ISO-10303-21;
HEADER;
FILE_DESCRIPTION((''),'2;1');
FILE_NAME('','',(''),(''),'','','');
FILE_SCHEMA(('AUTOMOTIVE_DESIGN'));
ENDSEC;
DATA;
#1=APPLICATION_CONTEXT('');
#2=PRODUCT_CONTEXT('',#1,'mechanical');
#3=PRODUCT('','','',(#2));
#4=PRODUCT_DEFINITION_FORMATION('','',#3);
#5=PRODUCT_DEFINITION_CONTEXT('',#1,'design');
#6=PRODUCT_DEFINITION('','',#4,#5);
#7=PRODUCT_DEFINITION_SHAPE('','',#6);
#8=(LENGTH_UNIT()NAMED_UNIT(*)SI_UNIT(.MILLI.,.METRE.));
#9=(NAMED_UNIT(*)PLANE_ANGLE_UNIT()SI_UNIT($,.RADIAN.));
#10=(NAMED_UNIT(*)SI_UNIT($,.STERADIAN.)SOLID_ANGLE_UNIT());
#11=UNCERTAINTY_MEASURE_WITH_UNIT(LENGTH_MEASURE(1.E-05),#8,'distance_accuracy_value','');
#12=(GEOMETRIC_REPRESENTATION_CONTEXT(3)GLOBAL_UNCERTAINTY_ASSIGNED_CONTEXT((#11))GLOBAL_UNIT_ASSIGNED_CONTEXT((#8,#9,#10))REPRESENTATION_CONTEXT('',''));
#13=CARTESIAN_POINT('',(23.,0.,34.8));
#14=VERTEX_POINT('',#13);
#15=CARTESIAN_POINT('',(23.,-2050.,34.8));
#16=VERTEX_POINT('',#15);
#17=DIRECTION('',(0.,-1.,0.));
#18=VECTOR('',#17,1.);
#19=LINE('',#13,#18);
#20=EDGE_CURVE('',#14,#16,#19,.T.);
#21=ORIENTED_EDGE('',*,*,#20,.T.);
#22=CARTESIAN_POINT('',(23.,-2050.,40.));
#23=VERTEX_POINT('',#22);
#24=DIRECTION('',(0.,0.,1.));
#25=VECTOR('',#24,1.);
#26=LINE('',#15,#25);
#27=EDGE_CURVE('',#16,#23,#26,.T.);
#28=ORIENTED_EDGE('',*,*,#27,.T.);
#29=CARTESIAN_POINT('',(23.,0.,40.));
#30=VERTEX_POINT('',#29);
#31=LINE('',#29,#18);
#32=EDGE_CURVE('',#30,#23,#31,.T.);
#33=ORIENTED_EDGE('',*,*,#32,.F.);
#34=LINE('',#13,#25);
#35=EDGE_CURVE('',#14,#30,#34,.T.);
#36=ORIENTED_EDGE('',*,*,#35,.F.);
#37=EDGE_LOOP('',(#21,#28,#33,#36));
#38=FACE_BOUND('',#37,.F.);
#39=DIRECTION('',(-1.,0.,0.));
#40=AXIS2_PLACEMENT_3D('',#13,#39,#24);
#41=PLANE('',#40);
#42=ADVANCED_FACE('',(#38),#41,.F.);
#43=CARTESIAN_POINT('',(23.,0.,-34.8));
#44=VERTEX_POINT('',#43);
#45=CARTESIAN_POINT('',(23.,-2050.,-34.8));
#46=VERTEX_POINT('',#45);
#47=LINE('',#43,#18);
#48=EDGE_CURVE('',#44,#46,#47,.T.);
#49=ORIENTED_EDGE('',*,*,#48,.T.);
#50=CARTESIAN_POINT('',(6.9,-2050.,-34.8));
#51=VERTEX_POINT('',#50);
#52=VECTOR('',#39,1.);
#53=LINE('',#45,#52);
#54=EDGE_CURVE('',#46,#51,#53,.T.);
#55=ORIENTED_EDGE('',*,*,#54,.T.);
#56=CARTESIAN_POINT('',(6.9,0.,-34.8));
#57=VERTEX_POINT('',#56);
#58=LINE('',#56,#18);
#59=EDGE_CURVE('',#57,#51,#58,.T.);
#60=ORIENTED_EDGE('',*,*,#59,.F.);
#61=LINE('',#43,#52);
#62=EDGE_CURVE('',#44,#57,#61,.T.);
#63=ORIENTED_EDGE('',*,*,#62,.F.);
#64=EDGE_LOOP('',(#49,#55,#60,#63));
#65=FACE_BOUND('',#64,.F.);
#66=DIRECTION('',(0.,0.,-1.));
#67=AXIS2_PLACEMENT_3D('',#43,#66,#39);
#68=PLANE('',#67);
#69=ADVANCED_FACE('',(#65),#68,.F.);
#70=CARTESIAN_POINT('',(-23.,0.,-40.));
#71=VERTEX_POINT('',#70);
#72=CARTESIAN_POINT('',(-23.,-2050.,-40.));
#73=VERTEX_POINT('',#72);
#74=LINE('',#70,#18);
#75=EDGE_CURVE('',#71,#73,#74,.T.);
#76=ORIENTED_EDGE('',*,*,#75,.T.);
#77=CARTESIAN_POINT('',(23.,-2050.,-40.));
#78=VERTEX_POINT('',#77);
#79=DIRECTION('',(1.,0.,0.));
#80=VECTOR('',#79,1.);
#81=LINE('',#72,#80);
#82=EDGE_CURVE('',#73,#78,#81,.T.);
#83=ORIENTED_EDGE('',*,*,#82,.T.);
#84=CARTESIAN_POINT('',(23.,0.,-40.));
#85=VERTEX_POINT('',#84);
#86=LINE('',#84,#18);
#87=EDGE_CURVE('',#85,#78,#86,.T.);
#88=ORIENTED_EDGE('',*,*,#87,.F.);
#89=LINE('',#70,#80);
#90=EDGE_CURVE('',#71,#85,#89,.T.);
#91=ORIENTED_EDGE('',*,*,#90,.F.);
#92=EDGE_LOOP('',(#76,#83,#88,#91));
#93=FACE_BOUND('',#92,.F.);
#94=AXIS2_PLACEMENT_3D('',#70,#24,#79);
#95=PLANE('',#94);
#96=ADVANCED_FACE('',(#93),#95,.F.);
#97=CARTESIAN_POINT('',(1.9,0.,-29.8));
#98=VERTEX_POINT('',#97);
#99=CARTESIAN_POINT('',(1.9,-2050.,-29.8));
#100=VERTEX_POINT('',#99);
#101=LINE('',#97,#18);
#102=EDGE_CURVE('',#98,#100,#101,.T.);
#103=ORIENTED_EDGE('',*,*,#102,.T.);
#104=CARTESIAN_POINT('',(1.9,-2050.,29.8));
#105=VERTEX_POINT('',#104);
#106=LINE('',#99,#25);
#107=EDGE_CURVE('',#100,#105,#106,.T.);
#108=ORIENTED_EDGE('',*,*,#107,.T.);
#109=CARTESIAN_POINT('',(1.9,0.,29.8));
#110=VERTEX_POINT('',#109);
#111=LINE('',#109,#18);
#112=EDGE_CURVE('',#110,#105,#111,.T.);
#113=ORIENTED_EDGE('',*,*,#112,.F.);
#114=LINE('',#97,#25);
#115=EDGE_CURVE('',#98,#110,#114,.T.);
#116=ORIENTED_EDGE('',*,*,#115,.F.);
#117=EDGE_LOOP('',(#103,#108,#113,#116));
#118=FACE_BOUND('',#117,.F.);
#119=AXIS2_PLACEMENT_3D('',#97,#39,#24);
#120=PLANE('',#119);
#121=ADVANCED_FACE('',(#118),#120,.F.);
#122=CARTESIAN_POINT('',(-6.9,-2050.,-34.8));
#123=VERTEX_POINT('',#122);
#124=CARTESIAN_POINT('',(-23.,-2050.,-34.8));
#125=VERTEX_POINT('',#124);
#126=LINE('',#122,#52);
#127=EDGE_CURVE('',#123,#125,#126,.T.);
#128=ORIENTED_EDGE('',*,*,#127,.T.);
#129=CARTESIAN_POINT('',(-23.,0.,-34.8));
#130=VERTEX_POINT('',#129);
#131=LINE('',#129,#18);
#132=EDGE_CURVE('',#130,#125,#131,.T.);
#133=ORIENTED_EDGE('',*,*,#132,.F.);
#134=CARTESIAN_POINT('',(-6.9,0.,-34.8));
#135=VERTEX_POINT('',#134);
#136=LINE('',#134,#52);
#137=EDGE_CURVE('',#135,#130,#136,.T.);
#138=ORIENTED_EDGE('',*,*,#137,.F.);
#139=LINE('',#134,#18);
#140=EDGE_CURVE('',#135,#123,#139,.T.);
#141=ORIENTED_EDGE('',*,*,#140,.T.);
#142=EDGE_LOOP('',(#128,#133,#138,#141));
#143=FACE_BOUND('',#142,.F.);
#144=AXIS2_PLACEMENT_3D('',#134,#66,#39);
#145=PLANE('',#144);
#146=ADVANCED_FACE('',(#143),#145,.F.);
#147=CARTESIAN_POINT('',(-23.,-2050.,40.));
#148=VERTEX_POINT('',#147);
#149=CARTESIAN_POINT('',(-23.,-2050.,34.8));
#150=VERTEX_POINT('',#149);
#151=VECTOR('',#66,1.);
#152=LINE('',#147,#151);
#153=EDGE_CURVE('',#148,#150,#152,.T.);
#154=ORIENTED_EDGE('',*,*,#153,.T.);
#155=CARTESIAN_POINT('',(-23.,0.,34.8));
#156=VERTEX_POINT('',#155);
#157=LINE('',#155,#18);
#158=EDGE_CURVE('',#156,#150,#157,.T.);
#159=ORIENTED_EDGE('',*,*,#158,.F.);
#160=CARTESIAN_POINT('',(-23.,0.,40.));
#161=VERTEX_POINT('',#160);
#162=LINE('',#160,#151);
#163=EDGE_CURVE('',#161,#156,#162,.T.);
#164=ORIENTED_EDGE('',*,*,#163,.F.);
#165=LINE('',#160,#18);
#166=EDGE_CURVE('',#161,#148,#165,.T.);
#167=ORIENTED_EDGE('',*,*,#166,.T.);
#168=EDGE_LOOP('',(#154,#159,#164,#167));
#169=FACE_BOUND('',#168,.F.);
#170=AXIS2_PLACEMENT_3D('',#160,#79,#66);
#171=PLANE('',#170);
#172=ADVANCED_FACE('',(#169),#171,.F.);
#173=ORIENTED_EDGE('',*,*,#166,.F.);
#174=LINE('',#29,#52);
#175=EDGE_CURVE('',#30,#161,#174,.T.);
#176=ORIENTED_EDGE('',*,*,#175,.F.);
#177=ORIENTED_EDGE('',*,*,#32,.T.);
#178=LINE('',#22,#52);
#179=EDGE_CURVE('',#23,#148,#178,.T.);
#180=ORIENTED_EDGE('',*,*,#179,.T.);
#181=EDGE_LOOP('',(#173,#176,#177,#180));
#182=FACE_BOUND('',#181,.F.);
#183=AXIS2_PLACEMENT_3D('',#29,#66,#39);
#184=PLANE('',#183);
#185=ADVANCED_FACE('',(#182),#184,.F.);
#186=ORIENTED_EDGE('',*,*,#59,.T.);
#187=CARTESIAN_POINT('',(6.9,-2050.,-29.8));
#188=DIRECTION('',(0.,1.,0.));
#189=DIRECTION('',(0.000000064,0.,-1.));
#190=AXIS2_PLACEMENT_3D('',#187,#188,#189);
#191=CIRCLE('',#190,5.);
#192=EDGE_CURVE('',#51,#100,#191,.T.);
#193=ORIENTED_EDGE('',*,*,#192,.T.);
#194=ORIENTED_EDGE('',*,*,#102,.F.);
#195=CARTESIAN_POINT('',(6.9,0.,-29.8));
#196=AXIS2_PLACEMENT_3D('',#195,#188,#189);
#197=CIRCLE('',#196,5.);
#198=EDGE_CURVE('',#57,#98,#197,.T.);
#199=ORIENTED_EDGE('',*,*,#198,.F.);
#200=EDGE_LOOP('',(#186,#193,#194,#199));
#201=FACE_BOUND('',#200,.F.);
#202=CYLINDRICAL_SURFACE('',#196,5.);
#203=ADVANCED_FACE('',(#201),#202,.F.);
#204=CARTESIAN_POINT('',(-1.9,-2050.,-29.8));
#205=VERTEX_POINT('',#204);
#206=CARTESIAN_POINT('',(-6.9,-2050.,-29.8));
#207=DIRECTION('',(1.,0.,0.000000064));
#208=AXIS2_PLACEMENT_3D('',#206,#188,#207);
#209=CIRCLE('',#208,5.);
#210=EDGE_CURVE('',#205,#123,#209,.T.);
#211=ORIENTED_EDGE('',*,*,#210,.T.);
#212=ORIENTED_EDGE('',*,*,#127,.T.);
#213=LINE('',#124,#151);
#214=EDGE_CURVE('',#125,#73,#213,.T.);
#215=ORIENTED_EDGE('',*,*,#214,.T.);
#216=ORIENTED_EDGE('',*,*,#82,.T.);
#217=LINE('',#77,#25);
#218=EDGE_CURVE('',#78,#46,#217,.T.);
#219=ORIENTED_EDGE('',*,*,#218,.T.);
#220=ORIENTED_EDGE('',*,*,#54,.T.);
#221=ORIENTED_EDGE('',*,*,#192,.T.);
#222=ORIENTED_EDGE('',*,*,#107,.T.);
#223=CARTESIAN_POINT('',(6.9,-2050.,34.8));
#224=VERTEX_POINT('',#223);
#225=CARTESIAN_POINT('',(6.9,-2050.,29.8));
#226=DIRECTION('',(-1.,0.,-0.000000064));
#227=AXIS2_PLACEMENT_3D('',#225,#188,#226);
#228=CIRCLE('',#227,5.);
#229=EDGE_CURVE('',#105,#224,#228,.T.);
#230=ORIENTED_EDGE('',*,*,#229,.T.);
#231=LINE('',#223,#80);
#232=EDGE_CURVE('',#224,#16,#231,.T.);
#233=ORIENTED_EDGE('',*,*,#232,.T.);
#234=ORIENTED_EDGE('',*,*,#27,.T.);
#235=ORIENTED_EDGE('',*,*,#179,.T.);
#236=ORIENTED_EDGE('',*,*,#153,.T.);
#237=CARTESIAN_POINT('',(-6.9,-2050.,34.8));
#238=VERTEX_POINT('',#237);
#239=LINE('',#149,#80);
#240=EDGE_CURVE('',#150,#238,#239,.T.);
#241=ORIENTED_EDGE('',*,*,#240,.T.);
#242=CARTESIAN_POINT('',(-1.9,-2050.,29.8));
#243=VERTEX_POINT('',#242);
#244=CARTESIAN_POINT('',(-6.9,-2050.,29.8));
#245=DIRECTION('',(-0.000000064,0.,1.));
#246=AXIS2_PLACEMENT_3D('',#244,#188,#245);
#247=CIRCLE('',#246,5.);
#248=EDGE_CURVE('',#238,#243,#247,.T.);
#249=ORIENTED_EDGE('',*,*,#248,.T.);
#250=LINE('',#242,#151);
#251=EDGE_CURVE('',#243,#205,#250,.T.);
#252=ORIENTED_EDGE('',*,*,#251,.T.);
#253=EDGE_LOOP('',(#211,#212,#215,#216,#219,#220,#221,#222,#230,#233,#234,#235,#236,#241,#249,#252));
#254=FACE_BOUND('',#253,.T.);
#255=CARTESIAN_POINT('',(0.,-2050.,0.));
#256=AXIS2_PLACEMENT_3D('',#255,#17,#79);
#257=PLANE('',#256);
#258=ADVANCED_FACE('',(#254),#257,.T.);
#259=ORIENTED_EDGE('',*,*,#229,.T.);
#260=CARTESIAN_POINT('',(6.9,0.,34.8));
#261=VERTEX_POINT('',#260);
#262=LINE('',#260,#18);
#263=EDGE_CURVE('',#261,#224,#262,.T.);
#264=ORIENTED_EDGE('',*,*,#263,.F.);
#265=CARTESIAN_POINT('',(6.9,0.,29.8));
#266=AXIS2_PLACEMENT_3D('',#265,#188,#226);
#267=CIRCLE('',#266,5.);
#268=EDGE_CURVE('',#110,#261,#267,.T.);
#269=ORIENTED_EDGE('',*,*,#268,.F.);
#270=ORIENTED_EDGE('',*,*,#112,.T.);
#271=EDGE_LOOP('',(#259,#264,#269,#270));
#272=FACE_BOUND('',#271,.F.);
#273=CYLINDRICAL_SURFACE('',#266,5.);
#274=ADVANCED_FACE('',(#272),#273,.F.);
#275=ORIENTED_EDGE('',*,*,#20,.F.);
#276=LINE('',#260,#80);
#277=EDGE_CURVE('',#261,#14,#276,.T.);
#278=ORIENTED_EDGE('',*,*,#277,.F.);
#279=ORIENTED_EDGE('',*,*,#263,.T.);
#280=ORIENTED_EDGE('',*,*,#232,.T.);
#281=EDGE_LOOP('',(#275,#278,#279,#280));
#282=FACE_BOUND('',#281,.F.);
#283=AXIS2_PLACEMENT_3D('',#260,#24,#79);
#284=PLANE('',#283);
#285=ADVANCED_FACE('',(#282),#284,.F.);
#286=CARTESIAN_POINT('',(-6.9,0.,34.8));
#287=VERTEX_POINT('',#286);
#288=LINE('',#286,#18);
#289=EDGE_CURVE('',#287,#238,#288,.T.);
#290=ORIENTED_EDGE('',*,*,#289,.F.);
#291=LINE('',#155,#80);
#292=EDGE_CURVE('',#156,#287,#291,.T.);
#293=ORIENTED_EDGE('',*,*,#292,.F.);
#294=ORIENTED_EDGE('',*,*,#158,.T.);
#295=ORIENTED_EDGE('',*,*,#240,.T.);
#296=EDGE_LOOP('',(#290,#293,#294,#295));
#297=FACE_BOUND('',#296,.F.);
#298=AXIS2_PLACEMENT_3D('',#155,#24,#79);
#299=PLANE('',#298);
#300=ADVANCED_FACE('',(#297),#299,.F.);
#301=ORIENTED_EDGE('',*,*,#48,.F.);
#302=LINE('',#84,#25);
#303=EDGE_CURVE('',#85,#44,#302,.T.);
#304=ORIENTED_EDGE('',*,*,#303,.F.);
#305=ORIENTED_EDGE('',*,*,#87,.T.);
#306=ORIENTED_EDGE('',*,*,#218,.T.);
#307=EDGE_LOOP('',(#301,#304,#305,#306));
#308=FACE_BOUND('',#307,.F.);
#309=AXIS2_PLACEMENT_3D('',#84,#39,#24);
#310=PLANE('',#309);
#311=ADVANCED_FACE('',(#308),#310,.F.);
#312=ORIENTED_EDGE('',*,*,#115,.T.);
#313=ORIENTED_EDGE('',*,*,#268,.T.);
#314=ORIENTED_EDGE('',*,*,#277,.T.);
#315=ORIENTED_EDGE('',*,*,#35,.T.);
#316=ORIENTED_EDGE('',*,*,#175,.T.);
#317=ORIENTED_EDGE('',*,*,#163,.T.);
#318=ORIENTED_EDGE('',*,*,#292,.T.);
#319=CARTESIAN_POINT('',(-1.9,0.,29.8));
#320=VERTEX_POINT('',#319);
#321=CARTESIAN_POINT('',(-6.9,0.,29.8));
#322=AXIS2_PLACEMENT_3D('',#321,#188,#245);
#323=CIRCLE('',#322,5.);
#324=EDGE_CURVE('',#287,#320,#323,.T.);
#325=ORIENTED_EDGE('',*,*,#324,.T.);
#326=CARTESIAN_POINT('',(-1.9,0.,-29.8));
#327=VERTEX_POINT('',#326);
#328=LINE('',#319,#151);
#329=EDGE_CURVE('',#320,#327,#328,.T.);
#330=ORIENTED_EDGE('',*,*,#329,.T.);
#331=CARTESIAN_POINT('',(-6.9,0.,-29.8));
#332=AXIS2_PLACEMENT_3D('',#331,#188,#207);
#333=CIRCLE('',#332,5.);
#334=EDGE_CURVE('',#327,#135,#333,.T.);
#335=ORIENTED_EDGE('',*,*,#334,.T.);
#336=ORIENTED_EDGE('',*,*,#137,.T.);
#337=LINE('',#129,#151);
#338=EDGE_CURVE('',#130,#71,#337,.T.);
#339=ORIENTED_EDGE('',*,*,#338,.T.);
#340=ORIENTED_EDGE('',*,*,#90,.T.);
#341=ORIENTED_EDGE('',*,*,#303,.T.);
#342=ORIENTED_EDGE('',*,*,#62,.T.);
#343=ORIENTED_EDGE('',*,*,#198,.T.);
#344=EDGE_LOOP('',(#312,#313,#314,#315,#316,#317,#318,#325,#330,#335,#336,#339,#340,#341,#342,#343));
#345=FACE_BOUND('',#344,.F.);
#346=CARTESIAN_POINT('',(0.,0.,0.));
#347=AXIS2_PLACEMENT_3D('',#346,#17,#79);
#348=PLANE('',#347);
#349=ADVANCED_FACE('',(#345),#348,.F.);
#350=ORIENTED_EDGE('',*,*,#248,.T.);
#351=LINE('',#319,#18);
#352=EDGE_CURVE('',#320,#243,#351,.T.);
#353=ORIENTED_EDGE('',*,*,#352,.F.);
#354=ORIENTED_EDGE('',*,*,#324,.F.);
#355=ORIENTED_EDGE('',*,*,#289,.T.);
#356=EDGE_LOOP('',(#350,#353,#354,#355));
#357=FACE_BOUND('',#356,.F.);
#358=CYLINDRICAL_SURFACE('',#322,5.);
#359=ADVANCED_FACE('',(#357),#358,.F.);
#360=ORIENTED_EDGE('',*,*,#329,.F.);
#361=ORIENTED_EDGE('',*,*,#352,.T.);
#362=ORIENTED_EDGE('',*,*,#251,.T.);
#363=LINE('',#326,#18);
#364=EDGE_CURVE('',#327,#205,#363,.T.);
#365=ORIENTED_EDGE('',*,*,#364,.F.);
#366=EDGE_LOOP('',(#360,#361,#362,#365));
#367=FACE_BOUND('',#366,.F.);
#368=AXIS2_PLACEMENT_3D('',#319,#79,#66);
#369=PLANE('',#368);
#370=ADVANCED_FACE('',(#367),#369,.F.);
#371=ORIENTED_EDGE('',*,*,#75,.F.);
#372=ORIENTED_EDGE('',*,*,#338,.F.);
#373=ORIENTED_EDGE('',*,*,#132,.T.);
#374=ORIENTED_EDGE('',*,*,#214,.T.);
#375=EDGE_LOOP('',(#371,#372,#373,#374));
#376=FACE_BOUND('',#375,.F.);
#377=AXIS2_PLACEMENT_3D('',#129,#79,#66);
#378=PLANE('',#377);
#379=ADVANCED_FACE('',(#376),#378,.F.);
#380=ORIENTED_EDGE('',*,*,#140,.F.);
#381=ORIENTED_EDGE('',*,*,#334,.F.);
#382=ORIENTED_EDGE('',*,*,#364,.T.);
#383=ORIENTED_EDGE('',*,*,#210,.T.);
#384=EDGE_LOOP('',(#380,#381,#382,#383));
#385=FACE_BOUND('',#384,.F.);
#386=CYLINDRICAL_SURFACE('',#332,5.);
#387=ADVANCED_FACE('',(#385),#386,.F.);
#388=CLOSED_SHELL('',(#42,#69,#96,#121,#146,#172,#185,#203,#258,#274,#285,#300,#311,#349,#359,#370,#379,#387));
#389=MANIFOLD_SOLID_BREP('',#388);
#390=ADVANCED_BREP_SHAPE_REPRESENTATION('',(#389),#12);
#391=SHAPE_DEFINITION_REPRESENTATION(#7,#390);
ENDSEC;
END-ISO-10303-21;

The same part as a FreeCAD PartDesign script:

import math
import FreeCAD as App
import Part
import Sketcher
from FreeCAD import Vector

doc = App.newDocument("Part")
params = doc.addObject("Spreadsheet::Sheet", "Params")
for row, (alias, value) in enumerate([
    ("sketch1_radius", "5 mm"),
    ("sketch1_width", "46 mm"),
    ("sketch1_width2", "16.1 mm"),
    ("sketch1_height", "5.2 mm"),
    ("sketch1_height2", "59.6 mm"),
    ("pad1_length", "2050 mm"),
], start=1):
    params.set(f"A{row}", alias)
    params.set(f"B{row}", "=" + value)
    params.setAlias(f"B{row}", alias)

body = doc.addObject("PartDesign::Body", "Body")

# Sketch on XZ plane
sketch1 = body.newObject("Sketcher::SketchObject", "Sketch")
sketch1.AttachmentSupport = (doc.getObject("XZ_Plane"), [""])
sketch1.MapMode = "FlatFace"
sketch1.addGeometry(Part.LineSegment(Vector(-23, 40, 0), Vector(-23, 34.8, 0)), False)
sketch1.addGeometry(Part.LineSegment(Vector(-23, 34.8, 0), Vector(-6.9, 34.8, 0)), False)
sketch1.addGeometry(Part.ArcOfCircle(Part.Circle(Vector(-6.9, 29.8, 0), Vector(0, 0, 1), 5), math.radians(0), math.radians(90)), False)
sketch1.addGeometry(Part.LineSegment(Vector(-1.9, 29.8, 0), Vector(-1.9, -29.8, 0)), False)
sketch1.addGeometry(Part.ArcOfCircle(Part.Circle(Vector(-6.9, -29.8, 0), Vector(0, 0, 1), 5), math.radians(-90), math.radians(0)), False)
sketch1.addGeometry(Part.LineSegment(Vector(-6.9, -34.8, 0), Vector(-23, -34.8, 0)), False)
sketch1.addGeometry(Part.LineSegment(Vector(-23, -34.8, 0), Vector(-23, -40, 0)), False)
sketch1.addGeometry(Part.LineSegment(Vector(-23, -40, 0), Vector(23, -40, 0)), False)
sketch1.addGeometry(Part.LineSegment(Vector(23, -40, 0), Vector(23, -34.8, 0)), False)
sketch1.addGeometry(Part.LineSegment(Vector(23, -34.8, 0), Vector(6.9, -34.8, 0)), False)
sketch1.addGeometry(Part.ArcOfCircle(Part.Circle(Vector(6.9, -29.8, 0), Vector(0, 0, 1), 5), math.radians(180), math.radians(270)), False)
sketch1.addGeometry(Part.LineSegment(Vector(1.9, -29.8, 0), Vector(1.9, 29.8, 0)), False)
sketch1.addGeometry(Part.ArcOfCircle(Part.Circle(Vector(6.9, 29.8, 0), Vector(0, 0, 1), 5), math.radians(90), math.radians(180)), False)
sketch1.addGeometry(Part.LineSegment(Vector(6.9, 34.8, 0), Vector(23, 34.8, 0)), False)
sketch1.addGeometry(Part.LineSegment(Vector(23, 34.8, 0), Vector(23, 40, 0)), False)
sketch1.addGeometry(Part.LineSegment(Vector(23, 40, 0), Vector(-23, 40, 0)), False)
sketch1.addConstraint(Sketcher.Constraint("Coincident", 0, 2, 1, 1))
sketch1.addConstraint(Sketcher.Constraint("Tangent", 1, 2, 2, 2))
sketch1.addConstraint(Sketcher.Constraint("Tangent", 2, 1, 3, 1))
sketch1.addConstraint(Sketcher.Constraint("Tangent", 3, 2, 4, 2))
sketch1.addConstraint(Sketcher.Constraint("Tangent", 4, 1, 5, 1))
sketch1.addConstraint(Sketcher.Constraint("Coincident", 5, 2, 6, 1))
sketch1.addConstraint(Sketcher.Constraint("Coincident", 6, 2, 7, 1))
sketch1.addConstraint(Sketcher.Constraint("Coincident", 7, 2, 8, 1))
sketch1.addConstraint(Sketcher.Constraint("Coincident", 8, 2, 9, 1))
sketch1.addConstraint(Sketcher.Constraint("Tangent", 9, 2, 10, 2))
sketch1.addConstraint(Sketcher.Constraint("Tangent", 10, 1, 11, 1))
sketch1.addConstraint(Sketcher.Constraint("Tangent", 11, 2, 12, 2))
sketch1.addConstraint(Sketcher.Constraint("Tangent", 12, 1, 13, 1))
sketch1.addConstraint(Sketcher.Constraint("Coincident", 13, 2, 14, 1))
sketch1.addConstraint(Sketcher.Constraint("Coincident", 14, 2, 15, 1))
sketch1.addConstraint(Sketcher.Constraint("Coincident", 15, 2, 0, 1))
sketch1.addConstraint(Sketcher.Constraint("Vertical", 0))
sketch1.addConstraint(Sketcher.Constraint("Horizontal", 1))
sketch1.addConstraint(Sketcher.Constraint("Vertical", 3))
sketch1.addConstraint(Sketcher.Constraint("Horizontal", 5))
sketch1.addConstraint(Sketcher.Constraint("Vertical", 6))
sketch1.addConstraint(Sketcher.Constraint("Horizontal", 7))
sketch1.addConstraint(Sketcher.Constraint("Vertical", 8))
sketch1.addConstraint(Sketcher.Constraint("Horizontal", 9))
sketch1.addConstraint(Sketcher.Constraint("Vertical", 11))
sketch1.addConstraint(Sketcher.Constraint("Horizontal", 13))
sketch1.addConstraint(Sketcher.Constraint("Vertical", 14))
sketch1.addConstraint(Sketcher.Constraint("Horizontal", 15))
sketch1.addConstraint(Sketcher.Constraint("Equal", 2, 4))
sketch1.addConstraint(Sketcher.Constraint("Equal", 4, 10))
sketch1.addConstraint(Sketcher.Constraint("Equal", 10, 12))
sketch1.addConstraint(Sketcher.Constraint("Symmetric", 2, 3, 10, 3, -1, 1))
sketch1.addConstraint(Sketcher.Constraint("Symmetric", 5, 2, 13, 2, -1, 1))
sketch1.addConstraint(Sketcher.Constraint("Symmetric", 7, 2, 15, 2, -1, 1))
sketch1.addConstraint(Sketcher.Constraint("Symmetric", 5, 2, 8, 2, -2))
sketch1.addConstraint(Sketcher.Constraint("Radius", 2, 5.0))
sketch1.addConstraint(Sketcher.Constraint("DistanceX", 7, 1, 7, 2, 46.0))
sketch1.addConstraint(Sketcher.Constraint("DistanceX", 1, 1, 1, 2, 16.1))
sketch1.addConstraint(Sketcher.Constraint("DistanceY", 0, 2, 0, 1, 5.2))
sketch1.addConstraint(Sketcher.Constraint("DistanceY", 3, 2, 3, 1, 59.6))
sketch1.setExpression("Constraints[35]", "Params.sketch1_radius")
sketch1.setExpression("Constraints[36]", "Params.sketch1_width")
sketch1.setExpression("Constraints[37]", "Params.sketch1_width2")
sketch1.setExpression("Constraints[38]", "Params.sketch1_height")
sketch1.setExpression("Constraints[39]", "Params.sketch1_height2")
pad1 = body.newObject("PartDesign::Pad", "Pad")
pad1.Profile = sketch1
pad1.setExpression("Length", "Params.pad1_length")

doc.recompute()
